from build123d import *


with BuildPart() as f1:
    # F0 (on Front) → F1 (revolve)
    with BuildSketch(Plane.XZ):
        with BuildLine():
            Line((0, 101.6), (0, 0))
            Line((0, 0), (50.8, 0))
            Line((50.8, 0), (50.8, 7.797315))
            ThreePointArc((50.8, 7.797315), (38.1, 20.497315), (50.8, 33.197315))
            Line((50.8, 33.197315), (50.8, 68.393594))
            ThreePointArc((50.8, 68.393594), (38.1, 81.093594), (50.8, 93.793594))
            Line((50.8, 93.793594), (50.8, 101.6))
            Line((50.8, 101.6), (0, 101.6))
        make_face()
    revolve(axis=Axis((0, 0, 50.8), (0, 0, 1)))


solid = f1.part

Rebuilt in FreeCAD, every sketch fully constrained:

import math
import FreeCAD as App
import Part
import Sketcher
from FreeCAD import Vector
Q = App.Units.Quantity

doc = App.newDocument("Part")
body = doc.addObject("PartDesign::Body", "Body")

# Sketch on XZ plane
sketch1 = body.newObject("Sketcher::SketchObject", "Sketch")
sketch1.AttachmentSupport = (doc.getObject("XZ_Plane"), [""])
sketch1.MapMode = "FlatFace"
sketch1.addGeometry(Part.LineSegment(Vector(0, 102, 0), Vector(0, 0, 0)), False)
sketch1.addGeometry(Part.LineSegment(Vector(0, 0, 0), Vector(51, 0, 0)), False)
sketch1.addGeometry(Part.LineSegment(Vector(51, 0, 0), Vector(51, 8, 0)), False)
sketch1.addGeometry(Part.ArcOfCircle(Part.Circle(Vector(51, 20, 0), Vector(0, 0, 1), 13), math.radians(90), math.radians(270)), False)
sketch1.addGeometry(Part.LineSegment(Vector(51, 33, 0), Vector(51, 68, 0)), False)
sketch1.addGeometry(Part.ArcOfCircle(Part.Circle(Vector(51, 81, 0), Vector(0, 0, 1), 13), math.radians(90), math.radians(270)), False)
sketch1.addGeometry(Part.LineSegment(Vector(51, 94, 0), Vector(51, 102, 0)), False)
sketch1.addGeometry(Part.LineSegment(Vector(51, 102, 0), Vector(0, 102, 0)), False)
sketch1.addConstraint(Sketcher.Constraint("Coincident", 0, 2, 1, 1))
sketch1.addConstraint(Sketcher.Constraint("Coincident", 1, 2, 2, 1))
sketch1.addConstraint(Sketcher.Constraint("Coincident", 2, 2, 3, 2))
sketch1.addConstraint(Sketcher.Constraint("Coincident", 3, 1, 4, 1))
sketch1.addConstraint(Sketcher.Constraint("Coincident", 4, 2, 5, 2))
sketch1.addConstraint(Sketcher.Constraint("Coincident", 5, 1, 6, 1))
sketch1.addConstraint(Sketcher.Constraint("Coincident", 6, 2, 7, 1))
sketch1.addConstraint(Sketcher.Constraint("Coincident", 7, 2, 0, 1))
sketch1.addConstraint(Sketcher.Constraint("Vertical", 0))
sketch1.addConstraint(Sketcher.Constraint("Horizontal", 1))
sketch1.addConstraint(Sketcher.Constraint("Vertical", 2))
sketch1.addConstraint(Sketcher.Constraint("Vertical", 4))
sketch1.addConstraint(Sketcher.Constraint("Vertical", 6))
sketch1.addConstraint(Sketcher.Constraint("Horizontal", 7))
sketch1.addConstraint(Sketcher.Constraint("Coincident", 0, 2, -1, 1))
sketch1.addConstraint(Sketcher.Constraint("Equal", 3, 5))
sketch1.addConstraint(Sketcher.Constraint("Vertical", 3, 3, 5, 3))
sketch1.addConstraint(Sketcher.Constraint("Vertical", 5, 3, 1, 2))
sketch1.addConstraint(Sketcher.Constraint("Vertical", 2, 2, 3, 1))
sketch1.addConstraint(Sketcher.Constraint("Vertical", 4, 2, 5, 1))
sketch1.addConstraint(Sketcher.Constraint("Radius", 3, Q("0.5 in")))
sketch1.addConstraint(Sketcher.Constraint("DistanceX", 1, 1, 1, 2, Q("2 in")))
sketch1.addConstraint(Sketcher.Constraint("DistanceY", 0, 2, 0, 1, Q("4 in")))
sketch1.addConstraint(Sketcher.Constraint("DistanceY", 4, 1, 4, 2, 35.196279))
sketch1.addConstraint(Sketcher.Constraint("DistanceY", 2, 1, 2, 2, 7.797315))
revolution = body.newObject("PartDesign::Revolution", "Revolution")
revolution.Profile = sketch1
revolution.ReferenceAxis = (sketch1, ["V_Axis"])
revolution.Angle = 360

doc.recompute()
